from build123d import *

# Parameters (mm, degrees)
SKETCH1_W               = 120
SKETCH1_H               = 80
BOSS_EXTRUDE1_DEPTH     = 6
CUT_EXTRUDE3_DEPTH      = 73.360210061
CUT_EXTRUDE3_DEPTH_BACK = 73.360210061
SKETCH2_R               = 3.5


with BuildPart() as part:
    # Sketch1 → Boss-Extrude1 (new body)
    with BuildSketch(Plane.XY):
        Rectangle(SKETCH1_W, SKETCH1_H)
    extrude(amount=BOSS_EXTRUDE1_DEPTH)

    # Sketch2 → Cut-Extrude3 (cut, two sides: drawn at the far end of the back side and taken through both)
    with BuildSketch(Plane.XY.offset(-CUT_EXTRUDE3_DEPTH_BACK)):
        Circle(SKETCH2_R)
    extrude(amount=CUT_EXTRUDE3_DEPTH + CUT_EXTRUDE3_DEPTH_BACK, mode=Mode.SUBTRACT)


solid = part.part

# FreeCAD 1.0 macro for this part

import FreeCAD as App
import Part
import Sketcher

V = App.Vector
Q = App.Units.Quantity


def add_polygon(sketch, points):
    """Adds a closed chain of lines whose ends are joined by coincident constraints."""
    first, n = sketch.GeometryCount, len(points)
    for a, b in zip(points, points[1:] + points[:1]):
        sketch.addGeometry(Part.LineSegment(App.Vector(*a, 0), App.Vector(*b, 0)), False)
    for i in range(n):
        sketch.addConstraint(Sketcher.Constraint("Coincident", first + i, 2, first + (i + 1) % n, 1))

doc = App.newDocument("Part")
body = doc.addObject("PartDesign::Body", "Body")

# Sketch on XY plane
sketch1 = doc.addObject("Sketcher::SketchObject", "Sketch")
body.addObject(sketch1)
sketch1.AttachmentSupport = (doc.XY_Plane, [""])
sketch1.MapMode = "FlatFace"
add_polygon(sketch1, [(-60, 40), (-60, -40), (60, -40), (60, 40)])  # lines 0-3
sketch1.addConstraint(Sketcher.Constraint("Vertical", 0))
sketch1.addConstraint(Sketcher.Constraint("Horizontal", 1))
sketch1.addConstraint(Sketcher.Constraint("Vertical", 2))
sketch1.addConstraint(Sketcher.Constraint("Horizontal", 3))
sketch1.addConstraint(Sketcher.Constraint("Symmetric", 0, 2, 2, 2, -1, 1))
sketch1.addConstraint(Sketcher.Constraint("DistanceX", 1, 1, 1, 2, Q("120 mm")))
sketch1.addConstraint(Sketcher.Constraint("DistanceY", 0, 2, 0, 1, Q("80 mm")))
pad1 = doc.addObject("PartDesign::Pad", "Pad")
body.addObject(pad1)
pad1.Profile = sketch1
pad1.Length = 6

# Sketch on XY plane
sketch2 = doc.addObject("Sketcher::SketchObject", "Sketch001")
body.addObject(sketch2)
sketch2.AttachmentSupport = (doc.XY_Plane, [""])
sketch2.MapMode = "FlatFace"
sketch2.addGeometry(Part.Circle(V(0, 0, 0), V(0, 0, 1), 3.5), False)
sketch2.addConstraint(Sketcher.Constraint("Coincident", 0, 3, -1, 1))
sketch2.addConstraint(Sketcher.Constraint("Diameter", 0, Q("7 mm")))
pocket1 = doc.addObject("PartDesign::Pocket", "Pocket")
body.addObject(pocket1)
pocket1.Profile = sketch2
pocket1.Type = "ThroughAll"
pocket1.Midplane = True

doc.recompute()
